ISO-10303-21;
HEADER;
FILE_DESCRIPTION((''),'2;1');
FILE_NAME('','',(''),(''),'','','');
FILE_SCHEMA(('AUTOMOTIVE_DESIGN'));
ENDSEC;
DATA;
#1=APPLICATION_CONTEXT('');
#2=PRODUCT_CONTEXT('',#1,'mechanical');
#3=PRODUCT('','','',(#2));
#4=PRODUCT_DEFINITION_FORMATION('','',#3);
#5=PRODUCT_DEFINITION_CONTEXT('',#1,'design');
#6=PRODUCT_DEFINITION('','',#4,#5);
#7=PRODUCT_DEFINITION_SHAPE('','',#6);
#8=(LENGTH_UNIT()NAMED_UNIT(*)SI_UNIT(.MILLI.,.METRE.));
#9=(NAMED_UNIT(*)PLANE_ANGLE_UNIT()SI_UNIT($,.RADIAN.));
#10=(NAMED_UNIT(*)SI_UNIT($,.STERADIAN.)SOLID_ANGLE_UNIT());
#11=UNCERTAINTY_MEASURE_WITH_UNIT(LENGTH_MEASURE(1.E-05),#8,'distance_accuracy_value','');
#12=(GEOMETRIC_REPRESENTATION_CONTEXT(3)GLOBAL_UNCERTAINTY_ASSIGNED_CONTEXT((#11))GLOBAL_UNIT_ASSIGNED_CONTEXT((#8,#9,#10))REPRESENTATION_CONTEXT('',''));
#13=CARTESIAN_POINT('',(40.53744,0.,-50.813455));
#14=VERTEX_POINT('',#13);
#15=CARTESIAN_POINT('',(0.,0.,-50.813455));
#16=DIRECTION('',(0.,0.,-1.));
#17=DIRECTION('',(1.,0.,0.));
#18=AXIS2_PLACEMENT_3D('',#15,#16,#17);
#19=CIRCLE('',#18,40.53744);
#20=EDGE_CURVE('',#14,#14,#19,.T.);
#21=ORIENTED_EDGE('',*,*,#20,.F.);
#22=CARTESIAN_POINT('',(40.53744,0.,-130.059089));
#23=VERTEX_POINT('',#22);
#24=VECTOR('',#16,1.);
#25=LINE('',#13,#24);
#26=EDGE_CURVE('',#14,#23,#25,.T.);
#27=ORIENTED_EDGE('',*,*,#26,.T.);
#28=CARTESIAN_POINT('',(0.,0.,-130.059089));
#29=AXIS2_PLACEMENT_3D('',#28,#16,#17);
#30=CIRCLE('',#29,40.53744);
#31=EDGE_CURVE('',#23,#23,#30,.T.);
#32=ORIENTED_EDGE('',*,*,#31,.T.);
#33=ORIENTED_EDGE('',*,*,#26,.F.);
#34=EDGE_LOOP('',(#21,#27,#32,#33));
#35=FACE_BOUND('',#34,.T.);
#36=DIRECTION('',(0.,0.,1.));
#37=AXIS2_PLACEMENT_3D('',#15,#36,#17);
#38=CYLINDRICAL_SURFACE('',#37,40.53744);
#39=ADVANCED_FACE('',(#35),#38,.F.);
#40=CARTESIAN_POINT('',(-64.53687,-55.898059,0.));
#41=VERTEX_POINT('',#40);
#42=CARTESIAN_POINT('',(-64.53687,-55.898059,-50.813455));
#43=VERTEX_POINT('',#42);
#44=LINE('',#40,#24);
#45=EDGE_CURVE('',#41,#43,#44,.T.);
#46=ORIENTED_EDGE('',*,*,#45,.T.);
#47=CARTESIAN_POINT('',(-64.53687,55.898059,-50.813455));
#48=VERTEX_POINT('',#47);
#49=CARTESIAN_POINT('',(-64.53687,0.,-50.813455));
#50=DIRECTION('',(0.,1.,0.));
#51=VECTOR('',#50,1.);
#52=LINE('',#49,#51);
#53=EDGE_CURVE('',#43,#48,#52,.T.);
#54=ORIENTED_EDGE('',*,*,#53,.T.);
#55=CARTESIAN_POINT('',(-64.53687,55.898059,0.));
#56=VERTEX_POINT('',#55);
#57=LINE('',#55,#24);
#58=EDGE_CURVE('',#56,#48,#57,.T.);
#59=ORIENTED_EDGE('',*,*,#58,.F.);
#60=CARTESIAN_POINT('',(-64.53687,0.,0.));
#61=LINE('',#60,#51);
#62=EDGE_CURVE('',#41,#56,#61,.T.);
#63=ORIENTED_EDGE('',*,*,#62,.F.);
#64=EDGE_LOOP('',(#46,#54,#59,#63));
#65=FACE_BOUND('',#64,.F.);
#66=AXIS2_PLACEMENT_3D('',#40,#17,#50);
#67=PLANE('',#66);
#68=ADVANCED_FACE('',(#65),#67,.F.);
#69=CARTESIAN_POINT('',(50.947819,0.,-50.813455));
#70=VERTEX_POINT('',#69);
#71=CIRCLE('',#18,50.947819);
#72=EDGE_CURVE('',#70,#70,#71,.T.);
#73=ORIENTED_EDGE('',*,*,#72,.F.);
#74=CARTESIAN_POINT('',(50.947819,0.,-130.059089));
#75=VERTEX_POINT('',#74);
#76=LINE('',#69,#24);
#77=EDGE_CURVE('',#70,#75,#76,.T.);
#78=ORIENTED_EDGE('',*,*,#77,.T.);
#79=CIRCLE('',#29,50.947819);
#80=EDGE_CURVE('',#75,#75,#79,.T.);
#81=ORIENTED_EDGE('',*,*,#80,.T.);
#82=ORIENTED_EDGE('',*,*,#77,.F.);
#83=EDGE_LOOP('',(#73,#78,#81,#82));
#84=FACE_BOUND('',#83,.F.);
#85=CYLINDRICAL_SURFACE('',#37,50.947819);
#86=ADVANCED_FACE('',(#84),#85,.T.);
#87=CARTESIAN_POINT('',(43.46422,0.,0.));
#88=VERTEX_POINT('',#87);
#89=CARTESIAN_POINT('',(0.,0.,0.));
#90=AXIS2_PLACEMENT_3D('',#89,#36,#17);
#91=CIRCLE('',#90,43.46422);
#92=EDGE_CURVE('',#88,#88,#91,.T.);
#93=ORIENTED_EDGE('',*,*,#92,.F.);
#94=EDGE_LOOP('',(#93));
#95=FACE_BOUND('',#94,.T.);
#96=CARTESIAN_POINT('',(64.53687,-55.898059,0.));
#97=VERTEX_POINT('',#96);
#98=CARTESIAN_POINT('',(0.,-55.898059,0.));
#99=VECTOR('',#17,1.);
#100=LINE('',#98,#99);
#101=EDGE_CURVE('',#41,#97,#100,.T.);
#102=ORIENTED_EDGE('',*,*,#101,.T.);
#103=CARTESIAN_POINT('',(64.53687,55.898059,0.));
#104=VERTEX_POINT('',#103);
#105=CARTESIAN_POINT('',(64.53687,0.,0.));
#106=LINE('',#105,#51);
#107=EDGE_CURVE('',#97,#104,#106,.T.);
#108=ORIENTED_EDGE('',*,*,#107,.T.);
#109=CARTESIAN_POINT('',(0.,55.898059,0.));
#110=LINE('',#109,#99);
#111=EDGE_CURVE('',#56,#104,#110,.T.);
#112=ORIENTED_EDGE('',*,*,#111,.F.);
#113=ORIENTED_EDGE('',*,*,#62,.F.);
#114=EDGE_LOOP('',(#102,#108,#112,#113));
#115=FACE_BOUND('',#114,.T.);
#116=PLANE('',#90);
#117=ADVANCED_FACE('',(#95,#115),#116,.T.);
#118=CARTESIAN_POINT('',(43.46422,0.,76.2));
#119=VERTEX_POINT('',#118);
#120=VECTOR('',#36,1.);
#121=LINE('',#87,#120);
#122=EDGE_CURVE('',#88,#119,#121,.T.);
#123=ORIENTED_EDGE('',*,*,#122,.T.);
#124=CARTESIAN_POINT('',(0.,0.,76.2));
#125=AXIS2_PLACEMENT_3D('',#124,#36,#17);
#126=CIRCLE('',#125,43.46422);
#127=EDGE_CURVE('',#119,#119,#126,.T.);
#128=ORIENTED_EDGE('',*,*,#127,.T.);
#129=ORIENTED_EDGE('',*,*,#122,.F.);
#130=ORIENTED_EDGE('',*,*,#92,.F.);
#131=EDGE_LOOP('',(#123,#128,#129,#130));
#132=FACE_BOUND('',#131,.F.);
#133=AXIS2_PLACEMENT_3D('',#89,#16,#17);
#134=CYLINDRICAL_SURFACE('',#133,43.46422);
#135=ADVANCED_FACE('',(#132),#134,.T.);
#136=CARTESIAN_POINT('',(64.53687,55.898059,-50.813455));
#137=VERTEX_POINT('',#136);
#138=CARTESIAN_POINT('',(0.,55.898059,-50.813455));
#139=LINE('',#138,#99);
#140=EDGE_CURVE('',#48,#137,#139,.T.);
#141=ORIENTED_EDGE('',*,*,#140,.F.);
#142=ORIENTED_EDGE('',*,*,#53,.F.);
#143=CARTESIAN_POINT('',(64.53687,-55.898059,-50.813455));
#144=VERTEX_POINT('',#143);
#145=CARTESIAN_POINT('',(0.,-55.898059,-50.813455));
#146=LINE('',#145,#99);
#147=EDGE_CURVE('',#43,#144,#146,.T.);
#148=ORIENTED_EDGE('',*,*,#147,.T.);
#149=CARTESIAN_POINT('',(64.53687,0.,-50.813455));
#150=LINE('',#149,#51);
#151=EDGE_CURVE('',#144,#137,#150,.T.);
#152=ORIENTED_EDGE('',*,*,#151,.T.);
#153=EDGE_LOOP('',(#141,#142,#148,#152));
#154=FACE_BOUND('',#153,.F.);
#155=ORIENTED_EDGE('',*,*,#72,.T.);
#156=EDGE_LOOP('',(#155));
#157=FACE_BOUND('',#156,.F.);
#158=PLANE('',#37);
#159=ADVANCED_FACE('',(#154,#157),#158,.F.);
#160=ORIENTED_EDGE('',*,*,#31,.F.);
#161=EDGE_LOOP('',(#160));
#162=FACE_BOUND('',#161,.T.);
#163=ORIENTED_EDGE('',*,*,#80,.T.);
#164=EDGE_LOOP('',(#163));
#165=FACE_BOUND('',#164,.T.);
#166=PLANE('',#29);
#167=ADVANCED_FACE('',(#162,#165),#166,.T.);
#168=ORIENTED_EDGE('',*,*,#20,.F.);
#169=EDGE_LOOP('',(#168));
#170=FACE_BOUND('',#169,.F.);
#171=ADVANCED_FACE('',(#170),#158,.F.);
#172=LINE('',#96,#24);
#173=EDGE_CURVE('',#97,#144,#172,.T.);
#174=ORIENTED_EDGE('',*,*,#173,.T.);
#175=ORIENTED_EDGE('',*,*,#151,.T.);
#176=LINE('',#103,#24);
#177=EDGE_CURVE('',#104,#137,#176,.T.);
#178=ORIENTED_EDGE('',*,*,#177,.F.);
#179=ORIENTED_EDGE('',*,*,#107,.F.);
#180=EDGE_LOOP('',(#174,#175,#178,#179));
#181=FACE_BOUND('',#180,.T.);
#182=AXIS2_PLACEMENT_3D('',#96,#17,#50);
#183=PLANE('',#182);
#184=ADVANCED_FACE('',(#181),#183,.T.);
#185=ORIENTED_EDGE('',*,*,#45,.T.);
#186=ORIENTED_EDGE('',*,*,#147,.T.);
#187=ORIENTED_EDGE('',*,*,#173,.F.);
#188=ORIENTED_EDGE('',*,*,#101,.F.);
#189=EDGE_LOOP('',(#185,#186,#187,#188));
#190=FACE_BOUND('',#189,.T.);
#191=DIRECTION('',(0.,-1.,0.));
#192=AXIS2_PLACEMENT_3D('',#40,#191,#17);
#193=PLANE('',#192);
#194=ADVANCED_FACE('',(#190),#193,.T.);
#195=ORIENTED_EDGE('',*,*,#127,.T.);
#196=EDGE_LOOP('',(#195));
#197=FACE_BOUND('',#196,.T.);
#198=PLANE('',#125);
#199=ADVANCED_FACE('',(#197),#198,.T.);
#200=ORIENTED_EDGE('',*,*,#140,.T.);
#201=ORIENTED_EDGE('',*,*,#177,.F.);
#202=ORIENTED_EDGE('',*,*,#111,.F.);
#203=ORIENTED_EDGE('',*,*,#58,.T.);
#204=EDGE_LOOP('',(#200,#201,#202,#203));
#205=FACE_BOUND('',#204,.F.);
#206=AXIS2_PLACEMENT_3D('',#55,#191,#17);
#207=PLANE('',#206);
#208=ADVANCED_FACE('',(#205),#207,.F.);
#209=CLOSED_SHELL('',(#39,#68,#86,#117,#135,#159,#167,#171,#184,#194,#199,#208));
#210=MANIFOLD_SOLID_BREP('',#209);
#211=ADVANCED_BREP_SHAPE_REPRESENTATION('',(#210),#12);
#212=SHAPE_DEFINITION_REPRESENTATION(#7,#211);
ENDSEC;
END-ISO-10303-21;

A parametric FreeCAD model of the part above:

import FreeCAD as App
import Part
import Sketcher

V = App.Vector

doc = App.newDocument("Part")
params = doc.addObject("Spreadsheet::Sheet", "Params")
for row, (alias, value) in enumerate([
    ("pad1_length", "50.813455 mm"),
    ("pad2_length", "3 in"),
    ("pad3_length", "79.245634 mm"),
], start=1):
    params.set(f"A{row}", alias)
    params.set(f"B{row}", "=" + value)
    params.setAlias(f"B{row}", alias)

body = doc.addObject("PartDesign::Body", "Body")

# Sketch on XY plane
sketch1 = body.newObject("Sketcher::SketchObject", "Sketch")
sketch1.AttachmentSupport = (doc.getObject("XY_Plane"), [""])
sketch1.MapMode = "FlatFace"
sketch1.addGeometry(Part.LineSegment(V(-64.53687, 55.898059, 0), V(-64.53687, -55.898059, 0)), False)
sketch1.addGeometry(Part.LineSegment(V(-64.53687, -55.898059, 0), V(64.53687, -55.898059, 0)), False)
sketch1.addGeometry(Part.LineSegment(V(64.53687, -55.898059, 0), V(64.53687, 55.898059, 0)), False)
sketch1.addGeometry(Part.LineSegment(V(64.53687, 55.898059, 0), V(-64.53687, 55.898059, 0)), False)
sketch1.addConstraint(Sketcher.Constraint("Coincident", 0, 2, 1, 1))
sketch1.addConstraint(Sketcher.Constraint("Coincident", 1, 2, 2, 1))
sketch1.addConstraint(Sketcher.Constraint("Coincident", 2, 2, 3, 1))
sketch1.addConstraint(Sketcher.Constraint("Coincident", 3, 2, 0, 1))
sketch1.addConstraint(Sketcher.Constraint("Vertical", 0))
sketch1.addConstraint(Sketcher.Constraint("Horizontal", 1))
sketch1.addConstraint(Sketcher.Constraint("Vertical", 2))
sketch1.addConstraint(Sketcher.Constraint("Horizontal", 3))
sketch1.addConstraint(Sketcher.Constraint("Symmetric", 0, 2, 2, 2, -1, 1))
sketch1.addConstraint(Sketcher.Constraint("DistanceX", 1, 1, 1, 2, 129.07374))
sketch1.addConstraint(Sketcher.Constraint("DistanceY", 0, 2, 0, 1, 111.796118))
pad1 = body.newObject("PartDesign::Pad", "Pad")
pad1.Profile = sketch1
pad1.setExpression("Length", "Params.pad1_length")
pad1.Reversed = True

# Sketch on XY plane
sketch2 = body.newObject("Sketcher::SketchObject", "Sketch001")
sketch2.AttachmentSupport = (doc.getObject("XY_Plane"), [""])
sketch2.MapMode = "FlatFace"
sketch2.addGeometry(Part.Circle(V(0, 0, 0), V(0, 0, 1), 43.46422), False)
sketch2.addConstraint(Sketcher.Constraint("Coincident", 0, 3, -1, 1))
sketch2.addConstraint(Sketcher.Constraint("Diameter", 0, 86.92844))
pad2 = body.newObject("PartDesign::Pad", "Pad001")
pad2.Profile = sketch2
pad2.setExpression("Length", "Params.pad2_length")

# Sketch on XY plane
sketch3 = body.newObject("Sketcher::SketchObject", "Sketch002")
sketch3.AttachmentSupport = (doc.getObject("XY_Plane"), [""])
sketch3.MapMode = "FlatFace"
sketch3.AttachmentOffset = App.Placement(V(0, 0, -50.813455), App.Rotation())
sketch3.addGeometry(Part.Circle(V(0, 0, 0), V(0, 0, 1), 50.947819), False)
sketch3.addGeometry(Part.Circle(V(0, 0, 0), V(0, 0, 1), 40.53744), False)
sketch3.addConstraint(Sketcher.Constraint("Coincident", 0, 3, -1, 1))
sketch3.addConstraint(Sketcher.Constraint("Coincident", 1, 3, -1, 1))
sketch3.addConstraint(Sketcher.Constraint("Diameter", 0, 101.895638))
sketch3.addConstraint(Sketcher.Constraint("Diameter", 1, 81.07488))
pad3 = body.newObject("PartDesign::Pad", "Pad002")
pad3.Profile = sketch3
pad3.setExpression("Length", "Params.pad3_length")
pad3.Reversed = True

doc.recompute()
